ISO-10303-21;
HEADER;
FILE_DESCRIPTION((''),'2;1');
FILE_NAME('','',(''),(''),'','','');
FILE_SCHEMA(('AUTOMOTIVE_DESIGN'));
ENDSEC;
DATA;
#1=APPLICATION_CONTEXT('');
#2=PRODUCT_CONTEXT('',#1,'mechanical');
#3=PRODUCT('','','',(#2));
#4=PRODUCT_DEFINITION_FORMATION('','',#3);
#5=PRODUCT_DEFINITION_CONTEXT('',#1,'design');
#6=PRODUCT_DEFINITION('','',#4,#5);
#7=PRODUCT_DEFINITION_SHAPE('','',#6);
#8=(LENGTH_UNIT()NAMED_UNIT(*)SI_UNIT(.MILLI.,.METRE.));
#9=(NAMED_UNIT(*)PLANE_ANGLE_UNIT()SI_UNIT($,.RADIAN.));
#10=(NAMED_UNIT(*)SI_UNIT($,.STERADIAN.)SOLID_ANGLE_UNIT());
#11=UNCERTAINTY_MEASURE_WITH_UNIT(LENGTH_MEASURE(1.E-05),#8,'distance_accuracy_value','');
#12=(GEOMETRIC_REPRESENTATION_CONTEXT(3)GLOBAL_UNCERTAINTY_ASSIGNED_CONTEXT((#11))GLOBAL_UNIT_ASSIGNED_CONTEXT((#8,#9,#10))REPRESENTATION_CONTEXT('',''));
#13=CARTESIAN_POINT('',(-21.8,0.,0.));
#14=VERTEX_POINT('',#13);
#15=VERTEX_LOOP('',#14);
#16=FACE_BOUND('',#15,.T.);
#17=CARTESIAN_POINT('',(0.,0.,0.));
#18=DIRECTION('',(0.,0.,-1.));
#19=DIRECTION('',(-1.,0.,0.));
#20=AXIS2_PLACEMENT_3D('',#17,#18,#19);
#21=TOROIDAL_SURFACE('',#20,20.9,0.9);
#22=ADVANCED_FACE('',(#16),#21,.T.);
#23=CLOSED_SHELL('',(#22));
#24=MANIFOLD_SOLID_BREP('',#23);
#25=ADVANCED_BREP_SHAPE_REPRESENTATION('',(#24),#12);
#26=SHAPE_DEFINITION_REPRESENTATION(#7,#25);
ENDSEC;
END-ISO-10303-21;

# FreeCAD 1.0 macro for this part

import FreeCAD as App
import Part
import Sketcher
from FreeCAD import Vector

doc = App.newDocument("Part")
body = doc.addObject("PartDesign::Body", "Body")

sketch1 = body.newObject("Sketcher::SketchObject", "Sketch")
sketch1.AttachmentSupport = (doc.getObject("XZ_Plane"), [""])
sketch1.MapMode = "FlatFace"
sketch1.addGeometry(Part.Circle(Vector(-20.9, 0, 0), Vector(0, 0, 1), 0.9), False)
sketch1.addConstraint([
    Sketcher.Constraint("PointOnObject", 0, 3, -1),
    Sketcher.Constraint("Diameter", 0, 1.8),
    Sketcher.Constraint("DistanceX", 0, 3, -1, 1, 20.9),
])

sketch2 = body.newObject("Sketcher::SketchObject", "Sketch001")
sketch2.AttachmentSupport = (doc.getObject("XY_Plane"), [""])
sketch2.MapMode = "FlatFace"
sketch2.addGeometry(Part.Circle(Vector(0, 0, 0), Vector(0, 0, 1), 20), False)
sketch2.addConstraint([
    Sketcher.Constraint("Coincident", 0, 3, -1, 1),
    Sketcher.Constraint("Diameter", 0, 40.0),
])
doc.recompute()

additivepipe = body.newObject("PartDesign::AdditivePipe", "AdditivePipe")
additivepipe.Profile = sketch1
additivepipe.Spine = (sketch2, ["Edge1"])

doc.recompute()
